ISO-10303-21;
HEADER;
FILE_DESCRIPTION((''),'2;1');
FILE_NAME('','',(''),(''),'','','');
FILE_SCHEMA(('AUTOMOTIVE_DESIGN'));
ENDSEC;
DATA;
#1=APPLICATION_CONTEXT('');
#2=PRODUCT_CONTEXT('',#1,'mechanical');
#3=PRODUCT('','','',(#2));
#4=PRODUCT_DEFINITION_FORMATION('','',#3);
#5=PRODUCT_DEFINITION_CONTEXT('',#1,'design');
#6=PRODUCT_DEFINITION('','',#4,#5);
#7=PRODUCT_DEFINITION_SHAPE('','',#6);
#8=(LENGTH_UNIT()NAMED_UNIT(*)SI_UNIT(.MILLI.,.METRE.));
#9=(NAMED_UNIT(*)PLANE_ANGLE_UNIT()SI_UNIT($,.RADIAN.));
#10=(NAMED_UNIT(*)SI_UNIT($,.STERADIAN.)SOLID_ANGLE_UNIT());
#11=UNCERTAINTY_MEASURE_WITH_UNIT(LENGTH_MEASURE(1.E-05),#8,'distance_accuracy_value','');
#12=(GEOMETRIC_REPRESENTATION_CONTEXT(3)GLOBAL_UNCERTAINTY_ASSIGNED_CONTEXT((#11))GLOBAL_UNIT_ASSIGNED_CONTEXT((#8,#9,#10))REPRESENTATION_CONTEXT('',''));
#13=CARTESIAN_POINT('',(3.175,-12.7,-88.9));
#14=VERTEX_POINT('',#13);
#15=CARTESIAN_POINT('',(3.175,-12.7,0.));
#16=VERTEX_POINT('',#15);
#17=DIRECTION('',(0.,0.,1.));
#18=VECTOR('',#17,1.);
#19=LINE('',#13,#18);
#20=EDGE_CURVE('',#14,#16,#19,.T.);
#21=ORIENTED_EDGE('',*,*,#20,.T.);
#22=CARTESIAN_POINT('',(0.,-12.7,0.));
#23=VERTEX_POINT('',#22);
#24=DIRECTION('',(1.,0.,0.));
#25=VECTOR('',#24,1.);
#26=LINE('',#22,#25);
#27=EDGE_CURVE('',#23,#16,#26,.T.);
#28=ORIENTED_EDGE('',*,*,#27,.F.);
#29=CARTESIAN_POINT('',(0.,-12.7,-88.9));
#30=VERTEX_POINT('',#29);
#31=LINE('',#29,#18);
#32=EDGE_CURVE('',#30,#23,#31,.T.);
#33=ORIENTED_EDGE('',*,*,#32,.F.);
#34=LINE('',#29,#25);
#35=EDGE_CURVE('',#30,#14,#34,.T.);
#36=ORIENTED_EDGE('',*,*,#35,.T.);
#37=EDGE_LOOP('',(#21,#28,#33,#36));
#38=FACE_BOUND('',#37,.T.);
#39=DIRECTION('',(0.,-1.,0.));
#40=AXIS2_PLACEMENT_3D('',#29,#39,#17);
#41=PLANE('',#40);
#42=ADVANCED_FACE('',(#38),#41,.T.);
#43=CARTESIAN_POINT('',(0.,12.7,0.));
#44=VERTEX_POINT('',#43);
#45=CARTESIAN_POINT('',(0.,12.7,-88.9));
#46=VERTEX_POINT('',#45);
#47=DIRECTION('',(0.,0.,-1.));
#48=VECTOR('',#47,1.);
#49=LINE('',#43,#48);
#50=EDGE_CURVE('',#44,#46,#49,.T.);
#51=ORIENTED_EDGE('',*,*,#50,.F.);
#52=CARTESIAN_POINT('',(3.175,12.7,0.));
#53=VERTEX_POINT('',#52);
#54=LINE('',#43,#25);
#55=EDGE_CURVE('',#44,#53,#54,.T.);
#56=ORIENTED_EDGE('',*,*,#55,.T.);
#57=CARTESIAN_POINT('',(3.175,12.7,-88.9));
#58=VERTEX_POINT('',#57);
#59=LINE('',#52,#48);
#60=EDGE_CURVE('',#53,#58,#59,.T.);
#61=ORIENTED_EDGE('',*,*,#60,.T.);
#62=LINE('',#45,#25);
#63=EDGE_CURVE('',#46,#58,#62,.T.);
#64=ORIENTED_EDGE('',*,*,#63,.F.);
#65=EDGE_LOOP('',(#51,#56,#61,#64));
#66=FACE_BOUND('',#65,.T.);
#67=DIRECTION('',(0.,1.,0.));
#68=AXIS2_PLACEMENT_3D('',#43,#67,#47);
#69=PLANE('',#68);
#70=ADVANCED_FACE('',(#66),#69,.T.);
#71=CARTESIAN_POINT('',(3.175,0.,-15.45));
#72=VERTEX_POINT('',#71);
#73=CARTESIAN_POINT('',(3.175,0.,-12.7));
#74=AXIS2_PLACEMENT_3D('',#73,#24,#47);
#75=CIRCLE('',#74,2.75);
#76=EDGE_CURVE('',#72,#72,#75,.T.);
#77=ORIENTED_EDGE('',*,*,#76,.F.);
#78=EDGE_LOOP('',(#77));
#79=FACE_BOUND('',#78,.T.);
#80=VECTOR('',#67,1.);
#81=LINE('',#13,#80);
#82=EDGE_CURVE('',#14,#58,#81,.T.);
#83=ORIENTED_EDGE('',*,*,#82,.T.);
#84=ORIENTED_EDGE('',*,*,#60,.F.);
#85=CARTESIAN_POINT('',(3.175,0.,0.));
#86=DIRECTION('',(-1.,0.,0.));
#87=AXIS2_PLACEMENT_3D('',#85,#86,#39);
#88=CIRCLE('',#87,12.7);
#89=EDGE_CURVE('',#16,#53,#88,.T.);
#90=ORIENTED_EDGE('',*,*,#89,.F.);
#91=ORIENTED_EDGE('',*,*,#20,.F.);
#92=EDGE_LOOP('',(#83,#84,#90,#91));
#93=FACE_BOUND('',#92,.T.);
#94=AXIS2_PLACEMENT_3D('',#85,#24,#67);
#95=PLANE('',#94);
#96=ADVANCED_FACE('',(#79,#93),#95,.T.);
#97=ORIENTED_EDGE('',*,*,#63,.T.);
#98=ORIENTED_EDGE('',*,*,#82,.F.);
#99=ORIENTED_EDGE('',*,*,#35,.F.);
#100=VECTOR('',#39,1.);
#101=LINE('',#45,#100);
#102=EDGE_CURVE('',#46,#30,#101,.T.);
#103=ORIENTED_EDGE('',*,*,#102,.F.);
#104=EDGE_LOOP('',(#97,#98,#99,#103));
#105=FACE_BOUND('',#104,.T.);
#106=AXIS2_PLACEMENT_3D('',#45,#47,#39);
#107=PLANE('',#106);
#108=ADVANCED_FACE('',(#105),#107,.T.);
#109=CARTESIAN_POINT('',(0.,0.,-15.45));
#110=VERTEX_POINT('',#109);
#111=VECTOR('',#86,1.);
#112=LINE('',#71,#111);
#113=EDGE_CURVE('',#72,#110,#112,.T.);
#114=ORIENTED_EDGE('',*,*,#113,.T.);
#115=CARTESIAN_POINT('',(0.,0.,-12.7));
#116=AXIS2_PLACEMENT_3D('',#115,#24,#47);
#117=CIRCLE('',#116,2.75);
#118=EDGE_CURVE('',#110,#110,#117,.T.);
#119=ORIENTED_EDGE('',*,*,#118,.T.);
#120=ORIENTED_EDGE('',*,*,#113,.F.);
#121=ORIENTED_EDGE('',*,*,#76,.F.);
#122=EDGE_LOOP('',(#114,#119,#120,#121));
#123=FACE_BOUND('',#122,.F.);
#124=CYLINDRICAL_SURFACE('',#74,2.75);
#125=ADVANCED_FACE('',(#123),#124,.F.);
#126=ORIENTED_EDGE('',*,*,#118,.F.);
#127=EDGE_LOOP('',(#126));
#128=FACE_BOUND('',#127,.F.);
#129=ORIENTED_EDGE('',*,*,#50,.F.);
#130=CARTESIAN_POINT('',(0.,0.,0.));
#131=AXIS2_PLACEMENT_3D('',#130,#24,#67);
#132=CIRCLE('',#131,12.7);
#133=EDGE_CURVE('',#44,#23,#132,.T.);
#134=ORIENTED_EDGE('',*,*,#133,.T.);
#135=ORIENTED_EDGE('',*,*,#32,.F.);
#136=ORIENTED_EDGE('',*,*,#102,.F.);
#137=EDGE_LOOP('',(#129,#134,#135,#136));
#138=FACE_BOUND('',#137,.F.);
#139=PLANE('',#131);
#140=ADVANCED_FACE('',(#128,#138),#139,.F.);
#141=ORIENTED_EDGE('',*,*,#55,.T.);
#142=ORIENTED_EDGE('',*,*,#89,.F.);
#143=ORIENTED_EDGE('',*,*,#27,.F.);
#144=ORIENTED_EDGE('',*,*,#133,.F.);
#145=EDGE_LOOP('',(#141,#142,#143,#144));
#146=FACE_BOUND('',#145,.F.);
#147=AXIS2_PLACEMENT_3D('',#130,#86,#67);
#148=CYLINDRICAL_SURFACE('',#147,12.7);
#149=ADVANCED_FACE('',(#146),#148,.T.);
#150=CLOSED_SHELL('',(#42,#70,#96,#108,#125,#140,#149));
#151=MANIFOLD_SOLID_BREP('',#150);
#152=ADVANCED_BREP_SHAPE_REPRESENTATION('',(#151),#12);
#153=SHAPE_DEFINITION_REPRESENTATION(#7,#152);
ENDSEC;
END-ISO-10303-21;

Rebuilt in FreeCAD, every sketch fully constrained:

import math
import FreeCAD as App
import Part
import Sketcher

V = App.Vector
Q = App.Units.Quantity

doc = App.newDocument("Part")
body = doc.addObject("PartDesign::Body", "Body")

# Sketch on YZ plane
sketch1 = body.newObject("Sketcher::SketchObject", "Sketch")
sketch1.AttachmentSupport = (doc.getObject("YZ_Plane"), [""])
sketch1.MapMode = "FlatFace"
sketch1.addGeometry(Part.ArcOfCircle(Part.Circle(V(0, 0, 0), V(0, 0, 1), 13), math.radians(0), math.radians(180)), False)
sketch1.addGeometry(Part.LineSegment(V(-13, 0, 0), V(-13, -89, 0)), False)
sketch1.addGeometry(Part.LineSegment(V(-13, -89, 0), V(13, -89, 0)), False)
sketch1.addGeometry(Part.LineSegment(V(13, -89, 0), V(13, 0, 0)), False)
sketch1.addConstraint(Sketcher.Constraint("Tangent", 0, 2, 1, 1))
sketch1.addConstraint(Sketcher.Constraint("Coincident", 1, 2, 2, 1))
sketch1.addConstraint(Sketcher.Constraint("Coincident", 2, 2, 3, 1))
sketch1.addConstraint(Sketcher.Constraint("Tangent", 3, 2, 0, 1))
sketch1.addConstraint(Sketcher.Constraint("Vertical", 1))
sketch1.addConstraint(Sketcher.Constraint("Horizontal", 2))
sketch1.addConstraint(Sketcher.Constraint("Vertical", 3))
sketch1.addConstraint(Sketcher.Constraint("Coincident", 0, 3, -1, 1))
sketch1.addConstraint(Sketcher.Constraint("Radius", 0, Q("0.5 in")))
sketch1.addConstraint(Sketcher.Constraint("DistanceY", 1, 2, 1, 1, Q("3.5 in")))
pad1 = body.newObject("PartDesign::Pad", "Pad")
pad1.Profile = sketch1
pad1.Length = Q("0.125 in")

# Sketch on YZ plane
sketch2 = body.newObject("Sketcher::SketchObject", "Sketch001")
sketch2.AttachmentSupport = (doc.getObject("YZ_Plane"), [""])
sketch2.MapMode = "FlatFace"
sketch2.AttachmentOffset = App.Placement(V(0, 0, 0.125 * 25.4), App.Rotation())
sketch2.addGeometry(Part.Circle(V(0, -12.7, 0), V(0, 0, 1), 2.8), False)
sketch2.addConstraint(Sketcher.Constraint("PointOnObject", 0, 3, -2))
sketch2.addConstraint(Sketcher.Constraint("Diameter", 0, 5.5))
sketch2.addConstraint(Sketcher.Constraint("DistanceY", 0, 3, -1, 1, Q("0.5 in")))
pocket1 = body.newObject("PartDesign::Pocket", "Pocket")
pocket1.Profile = sketch2
pocket1.Type = "ThroughAll"

doc.recompute()
